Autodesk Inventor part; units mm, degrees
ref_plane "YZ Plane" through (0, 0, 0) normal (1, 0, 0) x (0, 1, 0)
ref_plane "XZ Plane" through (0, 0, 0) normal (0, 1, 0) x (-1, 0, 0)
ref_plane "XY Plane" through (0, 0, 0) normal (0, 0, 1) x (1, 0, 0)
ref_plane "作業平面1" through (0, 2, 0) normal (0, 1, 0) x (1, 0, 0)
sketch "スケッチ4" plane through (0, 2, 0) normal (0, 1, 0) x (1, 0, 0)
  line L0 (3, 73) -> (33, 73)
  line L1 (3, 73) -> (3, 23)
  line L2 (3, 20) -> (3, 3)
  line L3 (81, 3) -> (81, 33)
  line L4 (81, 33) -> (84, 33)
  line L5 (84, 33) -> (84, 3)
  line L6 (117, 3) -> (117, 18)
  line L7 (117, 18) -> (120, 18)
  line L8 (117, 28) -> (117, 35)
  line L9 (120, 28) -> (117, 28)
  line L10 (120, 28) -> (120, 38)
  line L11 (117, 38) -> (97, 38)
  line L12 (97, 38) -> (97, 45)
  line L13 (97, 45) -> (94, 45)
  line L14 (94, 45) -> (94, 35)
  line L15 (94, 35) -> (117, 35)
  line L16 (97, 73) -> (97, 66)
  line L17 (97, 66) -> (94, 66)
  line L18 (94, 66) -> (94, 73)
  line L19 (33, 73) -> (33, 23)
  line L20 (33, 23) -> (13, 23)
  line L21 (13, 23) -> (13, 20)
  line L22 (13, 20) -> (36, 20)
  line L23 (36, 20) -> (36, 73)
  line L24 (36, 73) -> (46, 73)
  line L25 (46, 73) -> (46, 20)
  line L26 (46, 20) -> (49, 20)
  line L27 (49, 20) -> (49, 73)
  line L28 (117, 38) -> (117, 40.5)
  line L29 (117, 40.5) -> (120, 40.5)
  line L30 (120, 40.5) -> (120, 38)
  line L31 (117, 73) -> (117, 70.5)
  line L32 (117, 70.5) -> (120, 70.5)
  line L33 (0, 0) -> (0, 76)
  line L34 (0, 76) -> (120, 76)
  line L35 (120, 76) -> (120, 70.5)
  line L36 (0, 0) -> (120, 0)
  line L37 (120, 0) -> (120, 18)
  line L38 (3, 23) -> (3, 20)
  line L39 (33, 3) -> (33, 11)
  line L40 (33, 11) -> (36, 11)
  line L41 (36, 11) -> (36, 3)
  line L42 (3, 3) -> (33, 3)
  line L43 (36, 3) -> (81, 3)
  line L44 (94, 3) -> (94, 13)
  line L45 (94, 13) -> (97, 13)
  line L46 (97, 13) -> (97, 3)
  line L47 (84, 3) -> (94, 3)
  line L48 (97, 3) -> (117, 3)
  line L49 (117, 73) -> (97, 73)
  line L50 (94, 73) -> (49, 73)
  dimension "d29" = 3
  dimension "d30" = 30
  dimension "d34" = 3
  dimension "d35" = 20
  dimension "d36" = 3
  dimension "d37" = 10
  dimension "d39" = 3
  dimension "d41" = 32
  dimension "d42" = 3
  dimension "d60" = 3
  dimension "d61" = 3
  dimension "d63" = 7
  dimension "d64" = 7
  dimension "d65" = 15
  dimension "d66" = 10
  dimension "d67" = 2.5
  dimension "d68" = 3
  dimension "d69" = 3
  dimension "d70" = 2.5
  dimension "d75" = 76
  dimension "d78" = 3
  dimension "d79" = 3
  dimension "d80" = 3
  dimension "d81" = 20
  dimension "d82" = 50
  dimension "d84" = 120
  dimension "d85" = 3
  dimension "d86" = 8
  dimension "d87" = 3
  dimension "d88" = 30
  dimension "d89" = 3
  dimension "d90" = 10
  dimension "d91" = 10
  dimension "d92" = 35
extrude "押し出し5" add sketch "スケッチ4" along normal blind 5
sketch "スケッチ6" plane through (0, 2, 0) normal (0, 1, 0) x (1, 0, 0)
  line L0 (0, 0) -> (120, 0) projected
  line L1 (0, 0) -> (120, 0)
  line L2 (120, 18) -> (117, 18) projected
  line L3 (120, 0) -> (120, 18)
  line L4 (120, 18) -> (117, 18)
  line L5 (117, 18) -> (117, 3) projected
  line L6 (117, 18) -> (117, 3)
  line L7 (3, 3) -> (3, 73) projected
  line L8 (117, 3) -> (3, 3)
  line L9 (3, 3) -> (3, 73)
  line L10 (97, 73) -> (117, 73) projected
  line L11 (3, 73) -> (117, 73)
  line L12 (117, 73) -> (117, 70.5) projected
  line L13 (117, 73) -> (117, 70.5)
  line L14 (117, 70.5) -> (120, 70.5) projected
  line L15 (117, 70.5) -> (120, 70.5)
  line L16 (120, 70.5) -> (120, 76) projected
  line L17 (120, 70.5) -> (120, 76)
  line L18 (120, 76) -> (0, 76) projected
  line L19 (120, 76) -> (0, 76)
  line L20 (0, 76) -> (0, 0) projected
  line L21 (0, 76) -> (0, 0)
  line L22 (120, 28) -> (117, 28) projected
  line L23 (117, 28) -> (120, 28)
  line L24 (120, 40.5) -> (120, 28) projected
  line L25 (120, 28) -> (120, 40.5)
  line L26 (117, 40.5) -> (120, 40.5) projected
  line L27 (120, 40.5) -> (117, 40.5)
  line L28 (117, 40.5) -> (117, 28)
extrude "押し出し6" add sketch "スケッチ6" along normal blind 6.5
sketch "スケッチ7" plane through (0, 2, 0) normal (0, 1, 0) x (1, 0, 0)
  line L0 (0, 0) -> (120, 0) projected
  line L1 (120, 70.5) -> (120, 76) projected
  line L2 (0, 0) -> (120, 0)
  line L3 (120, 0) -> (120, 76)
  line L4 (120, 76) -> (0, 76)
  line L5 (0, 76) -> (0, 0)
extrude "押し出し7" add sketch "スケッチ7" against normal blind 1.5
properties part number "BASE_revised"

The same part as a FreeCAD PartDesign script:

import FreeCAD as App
import Part
import Sketcher
from FreeCAD import Vector

doc = App.newDocument("Part")
params = doc.addObject("Spreadsheet::Sheet", "Params")
for row, (alias, value) in enumerate([
    ("sketch1_width", "30 mm"),
    ("sketch1_width2", "20 mm"),
    ("sketch1_width3", "10 mm"),
    ("sketch1_width4", "3 mm"),
    ("sketch1_width5", "120 mm"),
    ("pad1_length", "5 mm"),
    ("sketch2_width", "120 mm"),
    ("sketch2_width2", "3 mm"),
    ("sketch2_width3", "114 mm"),
    ("sketch2_height", "76 mm"),
    ("sketch2_height2", "18 mm"),
    ("pad2_length", "6.5 mm"),
    ("sketch3_width", "120 mm"),
    ("sketch3_height", "76 mm"),
    ("pad3_length", "1.5 mm"),
], start=1):
    params.set(f"A{row}", alias)
    params.set(f"B{row}", "=" + value)
    params.setAlias(f"B{row}", alias)

body = doc.addObject("PartDesign::Body", "Body")
body.AllowCompound = True

# Sketch on XZ plane
sketch1 = body.newObject("Sketcher::SketchObject", "Sketch")
sketch1.AttachmentSupport = (doc.getObject("XZ_Plane"), [""])
sketch1.MapMode = "FlatFace"
sketch1.AttachmentOffset = App.Placement(Vector(0, 0, -2), App.Rotation())
sketch1.addGeometry(Part.LineSegment(Vector(3, -3, 0), Vector(3, -73, 0)), False)
sketch1.addGeometry(Part.LineSegment(Vector(3, -73, 0), Vector(33, -73, 0)), False)
sketch1.addGeometry(Part.LineSegment(Vector(33, -73, 0), Vector(33, -23, 0)), False)
sketch1.addGeometry(Part.LineSegment(Vector(33, -23, 0), Vector(13, -23, 0)), False)
sketch1.addGeometry(Part.LineSegment(Vector(13, -23, 0), Vector(13, -20, 0)), False)
sketch1.addGeometry(Part.LineSegment(Vector(13, -20, 0), Vector(36, -20, 0)), False)
sketch1.addGeometry(Part.LineSegment(Vector(36, -20, 0), Vector(36, -73, 0)), False)
sketch1.addGeometry(Part.LineSegment(Vector(36, -73, 0), Vector(46, -73, 0)), False)
sketch1.addGeometry(Part.LineSegment(Vector(46, -73, 0), Vector(46, -20, 0)), False)
sketch1.addGeometry(Part.LineSegment(Vector(46, -20, 0), Vector(49, -20, 0)), False)
sketch1.addGeometry(Part.LineSegment(Vector(49, -20, 0), Vector(49, -73, 0)), False)
sketch1.addGeometry(Part.LineSegment(Vector(49, -73, 0), Vector(94, -73, 0)), False)
sketch1.addGeometry(Part.LineSegment(Vector(94, -73, 0), Vector(94, -66, 0)), False)
sketch1.addGeometry(Part.LineSegment(Vector(94, -66, 0), Vector(97, -66, 0)), False)
sketch1.addGeometry(Part.LineSegment(Vector(97, -66, 0), Vector(97, -73, 0)), False)
sketch1.addGeometry(Part.LineSegment(Vector(97, -73, 0), Vector(117, -73, 0)), False)
sketch1.addGeometry(Part.LineSegment(Vector(117, -73, 0), Vector(117, -70.5, 0)), False)
sketch1.addGeometry(Part.LineSegment(Vector(117, -70.5, 0), Vector(120, -70.5, 0)), False)
sketch1.addGeometry(Part.LineSegment(Vector(120, -70.5, 0), Vector(120, -76, 0)), False)
sketch1.addGeometry(Part.LineSegment(Vector(120, -76, 0), Vector(0, -76, 0)), False)
sketch1.addGeometry(Part.LineSegment(Vector(0, -76, 0), Vector(0, 0, 0)), False)
sketch1.addGeometry(Part.LineSegment(Vector(0, 0, 0), Vector(120, 0, 0)), False)
sketch1.addGeometry(Part.LineSegment(Vector(120, 0, 0), Vector(120, -18, 0)), False)
sketch1.addGeometry(Part.LineSegment(Vector(120, -18, 0), Vector(117, -18, 0)), False)
sketch1.addGeometry(Part.LineSegment(Vector(117, -18, 0), Vector(117, -3, 0)), False)
sketch1.addGeometry(Part.LineSegment(Vector(117, -3, 0), Vector(97, -3, 0)), False)
sketch1.addGeometry(Part.LineSegment(Vector(97, -3, 0), Vector(97, -13, 0)), False)
sketch1.addGeometry(Part.LineSegment(Vector(97, -13, 0), Vector(94, -13, 0)), False)
sketch1.addGeometry(Part.LineSegment(Vector(94, -13, 0), Vector(94, -3, 0)), False)
sketch1.addGeometry(Part.LineSegment(Vector(94, -3, 0), Vector(84, -3, 0)), False)
sketch1.addGeometry(Part.LineSegment(Vector(84, -3, 0), Vector(84, -33, 0)), False)
sketch1.addGeometry(Part.LineSegment(Vector(84, -33, 0), Vector(81, -33, 0)), False)
sketch1.addGeometry(Part.LineSegment(Vector(81, -33, 0), Vector(81, -3, 0)), False)
sketch1.addGeometry(Part.LineSegment(Vector(81, -3, 0), Vector(36, -3, 0)), False)
sketch1.addGeometry(Part.LineSegment(Vector(36, -3, 0), Vector(36, -11, 0)), False)
sketch1.addGeometry(Part.LineSegment(Vector(36, -11, 0), Vector(33, -11, 0)), False)
sketch1.addGeometry(Part.LineSegment(Vector(33, -11, 0), Vector(33, -3, 0)), False)
sketch1.addGeometry(Part.LineSegment(Vector(33, -3, 0), Vector(3, -3, 0)), False)
sketch1.addGeometry(Part.LineSegment(Vector(117, -35, 0), Vector(117, -28, 0)), False)
sketch1.addGeometry(Part.LineSegment(Vector(117, -28, 0), Vector(120, -28, 0)), False)
sketch1.addGeometry(Part.LineSegment(Vector(120, -28, 0), Vector(120, -40.5, 0)), False)
sketch1.addGeometry(Part.LineSegment(Vector(120, -40.5, 0), Vector(117, -40.5, 0)), False)
sketch1.addGeometry(Part.LineSegment(Vector(117, -40.5, 0), Vector(117, -38, 0)), False)
sketch1.addGeometry(Part.LineSegment(Vector(117, -38, 0), Vector(97, -38, 0)), False)
sketch1.addGeometry(Part.LineSegment(Vector(97, -38, 0), Vector(97, -45, 0)), False)
sketch1.addGeometry(Part.LineSegment(Vector(97, -45, 0), Vector(94, -45, 0)), False)
sketch1.addGeometry(Part.LineSegment(Vector(94, -45, 0), Vector(94, -35, 0)), False)
sketch1.addGeometry(Part.LineSegment(Vector(94, -35, 0), Vector(117, -35, 0)), False)
sketch1.addConstraint(Sketcher.Constraint("Coincident", 0, 2, 1, 1))
sketch1.addConstraint(Sketcher.Constraint("Coincident", 1, 2, 2, 1))
sketch1.addConstraint(Sketcher.Constraint("Coincident", 2, 2, 3, 1))
sketch1.addConstraint(Sketcher.Constraint("Coincident", 3, 2, 4, 1))
sketch1.addConstraint(Sketcher.Constraint("Coincident", 4, 2, 5, 1))
sketch1.addConstraint(Sketcher.Constraint("Coincident", 5, 2, 6, 1))
sketch1.addConstraint(Sketcher.Constraint("Coincident", 6, 2, 7, 1))
sketch1.addConstraint(Sketcher.Constraint("Coincident", 7, 2, 8, 1))
sketch1.addConstraint(Sketcher.Constraint("Coincident", 8, 2, 9, 1))
sketch1.addConstraint(Sketcher.Constraint("Coincident", 9, 2, 10, 1))
sketch1.addConstraint(Sketcher.Constraint("Coincident", 10, 2, 11, 1))
sketch1.addConstraint(Sketcher.Constraint("Coincident", 11, 2, 12, 1))
sketch1.addConstraint(Sketcher.Constraint("Coincident", 12, 2, 13, 1))
sketch1.addConstraint(Sketcher.Constraint("Coincident", 13, 2, 14, 1))
sketch1.addConstraint(Sketcher.Constraint("Coincident", 14, 2, 15, 1))
sketch1.addConstraint(Sketcher.Constraint("Coincident", 15, 2, 16, 1))
sketch1.addConstraint(Sketcher.Constraint("Coincident", 16, 2, 17, 1))
sketch1.addConstraint(Sketcher.Constraint("Coincident", 17, 2, 18, 1))
sketch1.addConstraint(Sketcher.Constraint("Coincident", 18, 2, 19, 1))
sketch1.addConstraint(Sketcher.Constraint("Coincident", 19, 2, 20, 1))
sketch1.addConstraint(Sketcher.Constraint("Coincident", 20, 2, 21, 1))
sketch1.addConstraint(Sketcher.Constraint("Coincident", 21, 2, 22, 1))
sketch1.addConstraint(Sketcher.Constraint("Coincident", 22, 2, 23, 1))
sketch1.addConstraint(Sketcher.Constraint("Coincident", 23, 2, 24, 1))
sketch1.addConstraint(Sketcher.Constraint("Coincident", 24, 2, 25, 1))
sketch1.addConstraint(Sketcher.Constraint("Coincident", 25, 2, 26, 1))
sketch1.addConstraint(Sketcher.Constraint("Coincident", 26, 2, 27, 1))
sketch1.addConstraint(Sketcher.Constraint("Coincident", 27, 2, 28, 1))
sketch1.addConstraint(Sketcher.Constraint("Coincident", 28, 2, 29, 1))
sketch1.addConstraint(Sketcher.Constraint("Coincident", 29, 2, 30, 1))
sketch1.addConstraint(Sketcher.Constraint("Coincident", 30, 2, 31, 1))
sketch1.addConstraint(Sketcher.Constraint("Coincident", 31, 2, 32, 1))
sketch1.addConstraint(Sketcher.Constraint("Coincident", 32, 2, 33, 1))
sketch1.addConstraint(Sketcher.Constraint("Coincident", 33, 2, 34, 1))
sketch1.addConstraint(Sketcher.Constraint("Coincident", 34, 2, 35, 1))
sketch1.addConstraint(Sketcher.Constraint("Coincident", 35, 2, 36, 1))
sketch1.addConstraint(Sketcher.Constraint("Coincident", 36, 2, 37, 1))
sketch1.addConstraint(Sketcher.Constraint("Coincident", 37, 2, 0, 1))
sketch1.addConstraint(Sketcher.Constraint("Coincident", 38, 2, 39, 1))
sketch1.addConstraint(Sketcher.Constraint("Coincident", 39, 2, 40, 1))
sketch1.addConstraint(Sketcher.Constraint("Coincident", 40, 2, 41, 1))
sketch1.addConstraint(Sketcher.Constraint("Coincident", 41, 2, 42, 1))
sketch1.addConstraint(Sketcher.Constraint("Coincident", 42, 2, 43, 1))
sketch1.addConstraint(Sketcher.Constraint("Coincident", 43, 2, 44, 1))
sketch1.addConstraint(Sketcher.Constraint("Coincident", 44, 2, 45, 1))
sketch1.addConstraint(Sketcher.Constraint("Coincident", 45, 2, 46, 1))
sketch1.addConstraint(Sketcher.Constraint("Coincident", 46, 2, 47, 1))
sketch1.addConstraint(Sketcher.Constraint("Coincident", 47, 2, 38, 1))
sketch1.addConstraint(Sketcher.Constraint("Vertical", 0))
sketch1.addConstraint(Sketcher.Constraint("Horizontal", 1))
sketch1.addConstraint(Sketcher.Constraint("Vertical", 2))
sketch1.addConstraint(Sketcher.Constraint("Horizontal", 3))
sketch1.addConstraint(Sketcher.Constraint("Vertical", 4))
sketch1.addConstraint(Sketcher.Constraint("Horizontal", 5))
sketch1.addConstraint(Sketcher.Constraint("Vertical", 6))
sketch1.addConstraint(Sketcher.Constraint("Horizontal", 7))
sketch1.addConstraint(Sketcher.Constraint("Vertical", 8))
sketch1.addConstraint(Sketcher.Constraint("Horizontal", 9))
sketch1.addConstraint(Sketcher.Constraint("Vertical", 10))
sketch1.addConstraint(Sketcher.Constraint("Horizontal", 11))
sketch1.addConstraint(Sketcher.Constraint("Vertical", 12))
sketch1.addConstraint(Sketcher.Constraint("Horizontal", 13))
sketch1.addConstraint(Sketcher.Constraint("Vertical", 14))
sketch1.addConstraint(Sketcher.Constraint("Horizontal", 15))
sketch1.addConstraint(Sketcher.Constraint("Vertical", 16))
sketch1.addConstraint(Sketcher.Constraint("Horizontal", 17))
sketch1.addConstraint(Sketcher.Constraint("Vertical", 18))
sketch1.addConstraint(Sketcher.Constraint("Horizontal", 19))
sketch1.addConstraint(Sketcher.Constraint("Vertical", 20))
sketch1.addConstraint(Sketcher.Constraint("Horizontal", 21))
sketch1.addConstraint(Sketcher.Constraint("Vertical", 22))
sketch1.addConstraint(Sketcher.Constraint("Horizontal", 23))
sketch1.addConstraint(Sketcher.Constraint("Vertical", 24))
sketch1.addConstraint(Sketcher.Constraint("Horizontal", 25))
sketch1.addConstraint(Sketcher.Constraint("Vertical", 26))
sketch1.addConstraint(Sketcher.Constraint("Horizontal", 27))
sketch1.addConstraint(Sketcher.Constraint("Vertical", 28))
sketch1.addConstraint(Sketcher.Constraint("Horizontal", 29))
sketch1.addConstraint(Sketcher.Constraint("Vertical", 30))
sketch1.addConstraint(Sketcher.Constraint("Horizontal", 31))
sketch1.addConstraint(Sketcher.Constraint("Vertical", 32))
sketch1.addConstraint(Sketcher.Constraint("Horizontal", 33))
sketch1.addConstraint(Sketcher.Constraint("Vertical", 34))
sketch1.addConstraint(Sketcher.Constraint("Horizontal", 35))
sketch1.addConstraint(Sketcher.Constraint("Vertical", 36))
sketch1.addConstraint(Sketcher.Constraint("Horizontal", 37))
sketch1.addConstraint(Sketcher.Constraint("Vertical", 38))
sketch1.addConstraint(Sketcher.Constraint("Horizontal", 39))
sketch1.addConstraint(Sketcher.Constraint("Vertical", 40))
sketch1.addConstraint(Sketcher.Constraint("Horizontal", 41))
sketch1.addConstraint(Sketcher.Constraint("Vertical", 42))
sketch1.addConstraint(Sketcher.Constraint("Horizontal", 43))
sketch1.addConstraint(Sketcher.Constraint("Vertical", 44))
sketch1.addConstraint(Sketcher.Constraint("Horizontal", 45))
sketch1.addConstraint(Sketcher.Constraint("Vertical", 46))
sketch1.addConstraint(Sketcher.Constraint("Horizontal", 47))
sketch1.addConstraint(Sketcher.Constraint("Coincident", 20, 2, -1, 1))
sketch1.addConstraint(Sketcher.Constraint("Horizontal", 1, 2, 6, 2))
sketch1.addConstraint(Sketcher.Constraint("Horizontal", 5, 2, 8, 2))
sketch1.addConstraint(Sketcher.Constraint("Horizontal", 7, 2, 10, 2))
sketch1.addConstraint(Sketcher.Constraint("Horizontal", 11, 2, 14, 2))
sketch1.addConstraint(Sketcher.Constraint("Horizontal", 25, 2, 28, 2))
sketch1.addConstraint(Sketcher.Constraint("Horizontal", 29, 2, 32, 2))
sketch1.addConstraint(Sketcher.Constraint("Horizontal", 33, 2, 36, 2))
sketch1.addConstraint(Sketcher.Constraint("Vertical", 18, 2, 21, 2))
sketch1.addConstraint(Sketcher.Constraint("Vertical", 16, 2, 23, 2))
sketch1.addConstraint(Sketcher.Constraint("Vertical", 14, 2, 25, 2))
sketch1.addConstraint(Sketcher.Constraint("Vertical", 12, 2, 27, 2))
sketch1.addConstraint(Sketcher.Constraint("Vertical", 6, 2, 33, 2))
sketch1.addConstraint(Sketcher.Constraint("Vertical", 2, 2, 35, 2))
sketch1.addConstraint(Sketcher.Constraint("Vertical", 24, 2, 38, 2))
sketch1.addConstraint(Sketcher.Constraint("Vertical", 22, 2, 39, 2))
sketch1.addConstraint(Sketcher.Constraint("Vertical", 38, 2, 41, 2))
sketch1.addConstraint(Sketcher.Constraint("Vertical", 26, 2, 43, 2))
sketch1.addConstraint(Sketcher.Constraint("Vertical", 28, 2, 45, 2))
sketch1.addConstraint(Sketcher.Constraint("Equal", 9, 13))
sketch1.addConstraint(Sketcher.Constraint("Equal", 3, 15))
sketch1.addConstraint(Sketcher.Constraint("Equal", 13, 17))
sketch1.addConstraint(Sketcher.Constraint("Equal", 7, 29))
sketch1.addConstraint(Sketcher.Constraint("Equal", 27, 31))
sketch1.addConstraint(Sketcher.Constraint("Equal", 31, 35))
sketch1.addConstraint(Sketcher.Constraint("Equal", 45, 4))
sketch1.addConstraint(Sketcher.Constraint("Equal", 29, 26))
sketch1.addConstraint(Sketcher.Constraint("Equal", 37, 30))
sketch1.addConstraint(Sketcher.Constraint("Equal", 14, 38))
sketch1.addConstraint(Sketcher.Constraint("Equal", 16, 42))
sketch1.addConstraint(Sketcher.Constraint("Equal", 38, 44))
sketch1.addConstraint(Sketcher.Constraint("Equal", 28, 46))
sketch1.addConstraint(Sketcher.Constraint("DistanceX", 1, 1, 1, 2, 30.0))
sketch1.addConstraint(Sketcher.Constraint("DistanceX", 3, 2, 3, 1, 20.0))
sketch1.addConstraint(Sketcher.Constraint("DistanceX", 7, 1, 7, 2, 10.0))
sketch1.addConstraint(Sketcher.Constraint("DistanceX", 9, 1, 9, 2, 3.0))
sketch1.addConstraint(Sketcher.Constraint("DistanceX", 19, 2, 19, 1, 120.0))
sketch1.addConstraint(Sketcher.Constraint("DistanceY", 2, 1, 2, 2, 50.0))
sketch1.addConstraint(Sketcher.Constraint("DistanceY", 12, 1, 12, 2, 7.0))
sketch1.addConstraint(Sketcher.Constraint("DistanceY", 20, 1, 20, 2, 76.0))
sketch1.addConstraint(Sketcher.Constraint("DistanceY", 24, 1, 24, 2, 15.0))
sketch1.addConstraint(Sketcher.Constraint("DistanceY", 34, 2, 34, 1, 8.0))
sketch1.addConstraint(Sketcher.Constraint("DistanceY", 16, 1, 16, 2, 2.5))
sketch1.addConstraint(Sketcher.Constraint("DistanceX", -1, 1, 0, 2, 3.0))
sketch1.addConstraint(Sketcher.Constraint("DistanceY", 4, 2, -1, 1, 20.0))
sketch1.addConstraint(Sketcher.Constraint("DistanceY", 24, 2, -1, 1, 3.0))
sketch1.addConstraint(Sketcher.Constraint("DistanceY", 46, 2, -1, 1, 35.0))
sketch1.setExpression("Constraints[128]", "Params.sketch1_width")
sketch1.setExpression("Constraints[129]", "Params.sketch1_width2")
sketch1.setExpression("Constraints[130]", "Params.sketch1_width3")
sketch1.setExpression("Constraints[131]", "Params.sketch1_width4")
sketch1.setExpression("Constraints[132]", "Params.sketch1_width5")
pad1 = body.newObject("PartDesign::Pad", "Pad")
pad1.Profile = sketch1
pad1.setExpression("Length", "Params.pad1_length")
pad1.Reversed = True

# Sketch on XZ plane
sketch2 = body.newObject("Sketcher::SketchObject", "Sketch001")
sketch2.AttachmentSupport = (doc.getObject("XZ_Plane"), [""])
sketch2.MapMode = "FlatFace"
sketch2.AttachmentOffset = App.Placement(Vector(0, 0, -2), App.Rotation())
sketch2.addGeometry(Part.LineSegment(Vector(0, -76, 0), Vector(0, 0, 0)), False)
sketch2.addGeometry(Part.LineSegment(Vector(0, 0, 0), Vector(120, 0, 0)), False)
sketch2.addGeometry(Part.LineSegment(Vector(120, 0, 0), Vector(120, -18, 0)), False)
sketch2.addGeometry(Part.LineSegment(Vector(120, -18, 0), Vector(117, -18, 0)), False)
sketch2.addGeometry(Part.LineSegment(Vector(117, -18, 0), Vector(117, -3, 0)), False)
sketch2.addGeometry(Part.LineSegment(Vector(117, -3, 0), Vector(3, -3, 0)), False)
sketch2.addGeometry(Part.LineSegment(Vector(3, -3, 0), Vector(3, -73, 0)), False)
sketch2.addGeometry(Part.LineSegment(Vector(3, -73, 0), Vector(117, -73, 0)), False)
sketch2.addGeometry(Part.LineSegment(Vector(117, -73, 0), Vector(117, -70.5, 0)), False)
sketch2.addGeometry(Part.LineSegment(Vector(117, -70.5, 0), Vector(120, -70.5, 0)), False)
sketch2.addGeometry(Part.LineSegment(Vector(120, -70.5, 0), Vector(120, -76, 0)), False)
sketch2.addGeometry(Part.LineSegment(Vector(120, -76, 0), Vector(0, -76, 0)), False)
sketch2.addGeometry(Part.LineSegment(Vector(117, -28, 0), Vector(120, -28, 0)), False)
sketch2.addGeometry(Part.LineSegment(Vector(120, -28, 0), Vector(120, -40.5, 0)), False)
sketch2.addGeometry(Part.LineSegment(Vector(120, -40.5, 0), Vector(117, -40.5, 0)), False)
sketch2.addGeometry(Part.LineSegment(Vector(117, -40.5, 0), Vector(117, -28, 0)), False)
sketch2.addConstraint(Sketcher.Constraint("Coincident", 0, 2, 1, 1))
sketch2.addConstraint(Sketcher.Constraint("Coincident", 1, 2, 2, 1))
sketch2.addConstraint(Sketcher.Constraint("Coincident", 2, 2, 3, 1))
sketch2.addConstraint(Sketcher.Constraint("Coincident", 3, 2, 4, 1))
sketch2.addConstraint(Sketcher.Constraint("Coincident", 4, 2, 5, 1))
sketch2.addConstraint(Sketcher.Constraint("Coincident", 5, 2, 6, 1))
sketch2.addConstraint(Sketcher.Constraint("Coincident", 6, 2, 7, 1))
sketch2.addConstraint(Sketcher.Constraint("Coincident", 7, 2, 8, 1))
sketch2.addConstraint(Sketcher.Constraint("Coincident", 8, 2, 9, 1))
sketch2.addConstraint(Sketcher.Constraint("Coincident", 9, 2, 10, 1))
sketch2.addConstraint(Sketcher.Constraint("Coincident", 10, 2, 11, 1))
sketch2.addConstraint(Sketcher.Constraint("Coincident", 11, 2, 0, 1))
sketch2.addConstraint(Sketcher.Constraint("Coincident", 12, 2, 13, 1))
sketch2.addConstraint(Sketcher.Constraint("Coincident", 13, 2, 14, 1))
sketch2.addConstraint(Sketcher.Constraint("Coincident", 14, 2, 15, 1))
sketch2.addConstraint(Sketcher.Constraint("Coincident", 15, 2, 12, 1))
sketch2.addConstraint(Sketcher.Constraint("Vertical", 0))
sketch2.addConstraint(Sketcher.Constraint("Horizontal", 1))
sketch2.addConstraint(Sketcher.Constraint("Vertical", 2))
sketch2.addConstraint(Sketcher.Constraint("Horizontal", 3))
sketch2.addConstraint(Sketcher.Constraint("Vertical", 4))
sketch2.addConstraint(Sketcher.Constraint("Horizontal", 5))
sketch2.addConstraint(Sketcher.Constraint("Vertical", 6))
sketch2.addConstraint(Sketcher.Constraint("Horizontal", 7))
sketch2.addConstraint(Sketcher.Constraint("Vertical", 8))
sketch2.addConstraint(Sketcher.Constraint("Horizontal", 9))
sketch2.addConstraint(Sketcher.Constraint("Vertical", 10))
sketch2.addConstraint(Sketcher.Constraint("Horizontal", 11))
sketch2.addConstraint(Sketcher.Constraint("Horizontal", 12))
sketch2.addConstraint(Sketcher.Constraint("Vertical", 13))
sketch2.addConstraint(Sketcher.Constraint("Horizontal", 14))
sketch2.addConstraint(Sketcher.Constraint("Vertical", 15))
sketch2.addConstraint(Sketcher.Constraint("Coincident", 0, 2, -1, 1))
sketch2.addConstraint(Sketcher.Constraint("Vertical", 4, 2, 7, 2))
sketch2.addConstraint(Sketcher.Constraint("Vertical", 2, 2, 9, 2))
sketch2.addConstraint(Sketcher.Constraint("Vertical", 10, 2, 12, 2))
sketch2.addConstraint(Sketcher.Constraint("Vertical", 8, 2, 14, 2))
sketch2.addConstraint(Sketcher.Constraint("DistanceX", 1, 1, 1, 2, 120.0))
sketch2.addConstraint(Sketcher.Constraint("DistanceX", 3, 2, 3, 1, 3.0))
sketch2.addConstraint(Sketcher.Constraint("DistanceX", 5, 2, 5, 1, 114.0))
sketch2.addConstraint(Sketcher.Constraint("DistanceY", 0, 1, 0, 2, 76.0))
sketch2.addConstraint(Sketcher.Constraint("DistanceY", 2, 2, 2, 1, 18.0))
sketch2.addConstraint(Sketcher.Constraint("DistanceY", 4, 1, 4, 2, 15.0))
sketch2.addConstraint(Sketcher.Constraint("DistanceY", 6, 2, 6, 1, 70.0))
sketch2.addConstraint(Sketcher.Constraint("DistanceY", 8, 1, 8, 2, 2.5))
sketch2.addConstraint(Sketcher.Constraint("DistanceY", 13, 2, 13, 1, 12.5))
sketch2.addConstraint(Sketcher.Constraint("DistanceY", 12, 2, -1, 1, 28.0))
sketch2.setExpression("Constraints[37]", "Params.sketch2_width")
sketch2.setExpression("Constraints[38]", "Params.sketch2_width2")
sketch2.setExpression("Constraints[39]", "Params.sketch2_width3")
sketch2.setExpression("Constraints[40]", "Params.sketch2_height")
sketch2.setExpression("Constraints[41]", "Params.sketch2_height2")
pad2 = body.newObject("PartDesign::Pad", "Pad001")
pad2.Profile = sketch2
pad2.setExpression("Length", "Params.pad2_length")
pad2.Reversed = True

# Sketch on XZ plane
sketch3 = body.newObject("Sketcher::SketchObject", "Sketch002")
sketch3.AttachmentSupport = (doc.getObject("XZ_Plane"), [""])
sketch3.MapMode = "FlatFace"
sketch3.AttachmentOffset = App.Placement(Vector(0, 0, -2), App.Rotation())
sketch3.addGeometry(Part.LineSegment(Vector(0, -76, 0), Vector(0, 0, 0)), False)
sketch3.addGeometry(Part.LineSegment(Vector(0, 0, 0), Vector(120, 0, 0)), False)
sketch3.addGeometry(Part.LineSegment(Vector(120, 0, 0), Vector(120, -76, 0)), False)
sketch3.addGeometry(Part.LineSegment(Vector(120, -76, 0), Vector(0, -76, 0)), False)
sketch3.addConstraint(Sketcher.Constraint("Coincident", 0, 2, 1, 1))
sketch3.addConstraint(Sketcher.Constraint("Coincident", 1, 2, 2, 1))
sketch3.addConstraint(Sketcher.Constraint("Coincident", 2, 2, 3, 1))
sketch3.addConstraint(Sketcher.Constraint("Coincident", 3, 2, 0, 1))
sketch3.addConstraint(Sketcher.Constraint("Vertical", 0))
sketch3.addConstraint(Sketcher.Constraint("Horizontal", 1))
sketch3.addConstraint(Sketcher.Constraint("Vertical", 2))
sketch3.addConstraint(Sketcher.Constraint("Horizontal", 3))
sketch3.addConstraint(Sketcher.Constraint("Coincident", 0, 2, -1, 1))
sketch3.addConstraint(Sketcher.Constraint("DistanceX", 1, 1, 1, 2, 120.0))
sketch3.addConstraint(Sketcher.Constraint("DistanceY", 0, 1, 0, 2, 76.0))
sketch3.setExpression("Constraints[9]", "Params.sketch3_width")
sketch3.setExpression("Constraints[10]", "Params.sketch3_height")
pad3 = body.newObject("PartDesign::Pad", "Pad002")
pad3.Profile = sketch3
pad3.setExpression("Length", "Params.pad3_length")

doc.recompute()
